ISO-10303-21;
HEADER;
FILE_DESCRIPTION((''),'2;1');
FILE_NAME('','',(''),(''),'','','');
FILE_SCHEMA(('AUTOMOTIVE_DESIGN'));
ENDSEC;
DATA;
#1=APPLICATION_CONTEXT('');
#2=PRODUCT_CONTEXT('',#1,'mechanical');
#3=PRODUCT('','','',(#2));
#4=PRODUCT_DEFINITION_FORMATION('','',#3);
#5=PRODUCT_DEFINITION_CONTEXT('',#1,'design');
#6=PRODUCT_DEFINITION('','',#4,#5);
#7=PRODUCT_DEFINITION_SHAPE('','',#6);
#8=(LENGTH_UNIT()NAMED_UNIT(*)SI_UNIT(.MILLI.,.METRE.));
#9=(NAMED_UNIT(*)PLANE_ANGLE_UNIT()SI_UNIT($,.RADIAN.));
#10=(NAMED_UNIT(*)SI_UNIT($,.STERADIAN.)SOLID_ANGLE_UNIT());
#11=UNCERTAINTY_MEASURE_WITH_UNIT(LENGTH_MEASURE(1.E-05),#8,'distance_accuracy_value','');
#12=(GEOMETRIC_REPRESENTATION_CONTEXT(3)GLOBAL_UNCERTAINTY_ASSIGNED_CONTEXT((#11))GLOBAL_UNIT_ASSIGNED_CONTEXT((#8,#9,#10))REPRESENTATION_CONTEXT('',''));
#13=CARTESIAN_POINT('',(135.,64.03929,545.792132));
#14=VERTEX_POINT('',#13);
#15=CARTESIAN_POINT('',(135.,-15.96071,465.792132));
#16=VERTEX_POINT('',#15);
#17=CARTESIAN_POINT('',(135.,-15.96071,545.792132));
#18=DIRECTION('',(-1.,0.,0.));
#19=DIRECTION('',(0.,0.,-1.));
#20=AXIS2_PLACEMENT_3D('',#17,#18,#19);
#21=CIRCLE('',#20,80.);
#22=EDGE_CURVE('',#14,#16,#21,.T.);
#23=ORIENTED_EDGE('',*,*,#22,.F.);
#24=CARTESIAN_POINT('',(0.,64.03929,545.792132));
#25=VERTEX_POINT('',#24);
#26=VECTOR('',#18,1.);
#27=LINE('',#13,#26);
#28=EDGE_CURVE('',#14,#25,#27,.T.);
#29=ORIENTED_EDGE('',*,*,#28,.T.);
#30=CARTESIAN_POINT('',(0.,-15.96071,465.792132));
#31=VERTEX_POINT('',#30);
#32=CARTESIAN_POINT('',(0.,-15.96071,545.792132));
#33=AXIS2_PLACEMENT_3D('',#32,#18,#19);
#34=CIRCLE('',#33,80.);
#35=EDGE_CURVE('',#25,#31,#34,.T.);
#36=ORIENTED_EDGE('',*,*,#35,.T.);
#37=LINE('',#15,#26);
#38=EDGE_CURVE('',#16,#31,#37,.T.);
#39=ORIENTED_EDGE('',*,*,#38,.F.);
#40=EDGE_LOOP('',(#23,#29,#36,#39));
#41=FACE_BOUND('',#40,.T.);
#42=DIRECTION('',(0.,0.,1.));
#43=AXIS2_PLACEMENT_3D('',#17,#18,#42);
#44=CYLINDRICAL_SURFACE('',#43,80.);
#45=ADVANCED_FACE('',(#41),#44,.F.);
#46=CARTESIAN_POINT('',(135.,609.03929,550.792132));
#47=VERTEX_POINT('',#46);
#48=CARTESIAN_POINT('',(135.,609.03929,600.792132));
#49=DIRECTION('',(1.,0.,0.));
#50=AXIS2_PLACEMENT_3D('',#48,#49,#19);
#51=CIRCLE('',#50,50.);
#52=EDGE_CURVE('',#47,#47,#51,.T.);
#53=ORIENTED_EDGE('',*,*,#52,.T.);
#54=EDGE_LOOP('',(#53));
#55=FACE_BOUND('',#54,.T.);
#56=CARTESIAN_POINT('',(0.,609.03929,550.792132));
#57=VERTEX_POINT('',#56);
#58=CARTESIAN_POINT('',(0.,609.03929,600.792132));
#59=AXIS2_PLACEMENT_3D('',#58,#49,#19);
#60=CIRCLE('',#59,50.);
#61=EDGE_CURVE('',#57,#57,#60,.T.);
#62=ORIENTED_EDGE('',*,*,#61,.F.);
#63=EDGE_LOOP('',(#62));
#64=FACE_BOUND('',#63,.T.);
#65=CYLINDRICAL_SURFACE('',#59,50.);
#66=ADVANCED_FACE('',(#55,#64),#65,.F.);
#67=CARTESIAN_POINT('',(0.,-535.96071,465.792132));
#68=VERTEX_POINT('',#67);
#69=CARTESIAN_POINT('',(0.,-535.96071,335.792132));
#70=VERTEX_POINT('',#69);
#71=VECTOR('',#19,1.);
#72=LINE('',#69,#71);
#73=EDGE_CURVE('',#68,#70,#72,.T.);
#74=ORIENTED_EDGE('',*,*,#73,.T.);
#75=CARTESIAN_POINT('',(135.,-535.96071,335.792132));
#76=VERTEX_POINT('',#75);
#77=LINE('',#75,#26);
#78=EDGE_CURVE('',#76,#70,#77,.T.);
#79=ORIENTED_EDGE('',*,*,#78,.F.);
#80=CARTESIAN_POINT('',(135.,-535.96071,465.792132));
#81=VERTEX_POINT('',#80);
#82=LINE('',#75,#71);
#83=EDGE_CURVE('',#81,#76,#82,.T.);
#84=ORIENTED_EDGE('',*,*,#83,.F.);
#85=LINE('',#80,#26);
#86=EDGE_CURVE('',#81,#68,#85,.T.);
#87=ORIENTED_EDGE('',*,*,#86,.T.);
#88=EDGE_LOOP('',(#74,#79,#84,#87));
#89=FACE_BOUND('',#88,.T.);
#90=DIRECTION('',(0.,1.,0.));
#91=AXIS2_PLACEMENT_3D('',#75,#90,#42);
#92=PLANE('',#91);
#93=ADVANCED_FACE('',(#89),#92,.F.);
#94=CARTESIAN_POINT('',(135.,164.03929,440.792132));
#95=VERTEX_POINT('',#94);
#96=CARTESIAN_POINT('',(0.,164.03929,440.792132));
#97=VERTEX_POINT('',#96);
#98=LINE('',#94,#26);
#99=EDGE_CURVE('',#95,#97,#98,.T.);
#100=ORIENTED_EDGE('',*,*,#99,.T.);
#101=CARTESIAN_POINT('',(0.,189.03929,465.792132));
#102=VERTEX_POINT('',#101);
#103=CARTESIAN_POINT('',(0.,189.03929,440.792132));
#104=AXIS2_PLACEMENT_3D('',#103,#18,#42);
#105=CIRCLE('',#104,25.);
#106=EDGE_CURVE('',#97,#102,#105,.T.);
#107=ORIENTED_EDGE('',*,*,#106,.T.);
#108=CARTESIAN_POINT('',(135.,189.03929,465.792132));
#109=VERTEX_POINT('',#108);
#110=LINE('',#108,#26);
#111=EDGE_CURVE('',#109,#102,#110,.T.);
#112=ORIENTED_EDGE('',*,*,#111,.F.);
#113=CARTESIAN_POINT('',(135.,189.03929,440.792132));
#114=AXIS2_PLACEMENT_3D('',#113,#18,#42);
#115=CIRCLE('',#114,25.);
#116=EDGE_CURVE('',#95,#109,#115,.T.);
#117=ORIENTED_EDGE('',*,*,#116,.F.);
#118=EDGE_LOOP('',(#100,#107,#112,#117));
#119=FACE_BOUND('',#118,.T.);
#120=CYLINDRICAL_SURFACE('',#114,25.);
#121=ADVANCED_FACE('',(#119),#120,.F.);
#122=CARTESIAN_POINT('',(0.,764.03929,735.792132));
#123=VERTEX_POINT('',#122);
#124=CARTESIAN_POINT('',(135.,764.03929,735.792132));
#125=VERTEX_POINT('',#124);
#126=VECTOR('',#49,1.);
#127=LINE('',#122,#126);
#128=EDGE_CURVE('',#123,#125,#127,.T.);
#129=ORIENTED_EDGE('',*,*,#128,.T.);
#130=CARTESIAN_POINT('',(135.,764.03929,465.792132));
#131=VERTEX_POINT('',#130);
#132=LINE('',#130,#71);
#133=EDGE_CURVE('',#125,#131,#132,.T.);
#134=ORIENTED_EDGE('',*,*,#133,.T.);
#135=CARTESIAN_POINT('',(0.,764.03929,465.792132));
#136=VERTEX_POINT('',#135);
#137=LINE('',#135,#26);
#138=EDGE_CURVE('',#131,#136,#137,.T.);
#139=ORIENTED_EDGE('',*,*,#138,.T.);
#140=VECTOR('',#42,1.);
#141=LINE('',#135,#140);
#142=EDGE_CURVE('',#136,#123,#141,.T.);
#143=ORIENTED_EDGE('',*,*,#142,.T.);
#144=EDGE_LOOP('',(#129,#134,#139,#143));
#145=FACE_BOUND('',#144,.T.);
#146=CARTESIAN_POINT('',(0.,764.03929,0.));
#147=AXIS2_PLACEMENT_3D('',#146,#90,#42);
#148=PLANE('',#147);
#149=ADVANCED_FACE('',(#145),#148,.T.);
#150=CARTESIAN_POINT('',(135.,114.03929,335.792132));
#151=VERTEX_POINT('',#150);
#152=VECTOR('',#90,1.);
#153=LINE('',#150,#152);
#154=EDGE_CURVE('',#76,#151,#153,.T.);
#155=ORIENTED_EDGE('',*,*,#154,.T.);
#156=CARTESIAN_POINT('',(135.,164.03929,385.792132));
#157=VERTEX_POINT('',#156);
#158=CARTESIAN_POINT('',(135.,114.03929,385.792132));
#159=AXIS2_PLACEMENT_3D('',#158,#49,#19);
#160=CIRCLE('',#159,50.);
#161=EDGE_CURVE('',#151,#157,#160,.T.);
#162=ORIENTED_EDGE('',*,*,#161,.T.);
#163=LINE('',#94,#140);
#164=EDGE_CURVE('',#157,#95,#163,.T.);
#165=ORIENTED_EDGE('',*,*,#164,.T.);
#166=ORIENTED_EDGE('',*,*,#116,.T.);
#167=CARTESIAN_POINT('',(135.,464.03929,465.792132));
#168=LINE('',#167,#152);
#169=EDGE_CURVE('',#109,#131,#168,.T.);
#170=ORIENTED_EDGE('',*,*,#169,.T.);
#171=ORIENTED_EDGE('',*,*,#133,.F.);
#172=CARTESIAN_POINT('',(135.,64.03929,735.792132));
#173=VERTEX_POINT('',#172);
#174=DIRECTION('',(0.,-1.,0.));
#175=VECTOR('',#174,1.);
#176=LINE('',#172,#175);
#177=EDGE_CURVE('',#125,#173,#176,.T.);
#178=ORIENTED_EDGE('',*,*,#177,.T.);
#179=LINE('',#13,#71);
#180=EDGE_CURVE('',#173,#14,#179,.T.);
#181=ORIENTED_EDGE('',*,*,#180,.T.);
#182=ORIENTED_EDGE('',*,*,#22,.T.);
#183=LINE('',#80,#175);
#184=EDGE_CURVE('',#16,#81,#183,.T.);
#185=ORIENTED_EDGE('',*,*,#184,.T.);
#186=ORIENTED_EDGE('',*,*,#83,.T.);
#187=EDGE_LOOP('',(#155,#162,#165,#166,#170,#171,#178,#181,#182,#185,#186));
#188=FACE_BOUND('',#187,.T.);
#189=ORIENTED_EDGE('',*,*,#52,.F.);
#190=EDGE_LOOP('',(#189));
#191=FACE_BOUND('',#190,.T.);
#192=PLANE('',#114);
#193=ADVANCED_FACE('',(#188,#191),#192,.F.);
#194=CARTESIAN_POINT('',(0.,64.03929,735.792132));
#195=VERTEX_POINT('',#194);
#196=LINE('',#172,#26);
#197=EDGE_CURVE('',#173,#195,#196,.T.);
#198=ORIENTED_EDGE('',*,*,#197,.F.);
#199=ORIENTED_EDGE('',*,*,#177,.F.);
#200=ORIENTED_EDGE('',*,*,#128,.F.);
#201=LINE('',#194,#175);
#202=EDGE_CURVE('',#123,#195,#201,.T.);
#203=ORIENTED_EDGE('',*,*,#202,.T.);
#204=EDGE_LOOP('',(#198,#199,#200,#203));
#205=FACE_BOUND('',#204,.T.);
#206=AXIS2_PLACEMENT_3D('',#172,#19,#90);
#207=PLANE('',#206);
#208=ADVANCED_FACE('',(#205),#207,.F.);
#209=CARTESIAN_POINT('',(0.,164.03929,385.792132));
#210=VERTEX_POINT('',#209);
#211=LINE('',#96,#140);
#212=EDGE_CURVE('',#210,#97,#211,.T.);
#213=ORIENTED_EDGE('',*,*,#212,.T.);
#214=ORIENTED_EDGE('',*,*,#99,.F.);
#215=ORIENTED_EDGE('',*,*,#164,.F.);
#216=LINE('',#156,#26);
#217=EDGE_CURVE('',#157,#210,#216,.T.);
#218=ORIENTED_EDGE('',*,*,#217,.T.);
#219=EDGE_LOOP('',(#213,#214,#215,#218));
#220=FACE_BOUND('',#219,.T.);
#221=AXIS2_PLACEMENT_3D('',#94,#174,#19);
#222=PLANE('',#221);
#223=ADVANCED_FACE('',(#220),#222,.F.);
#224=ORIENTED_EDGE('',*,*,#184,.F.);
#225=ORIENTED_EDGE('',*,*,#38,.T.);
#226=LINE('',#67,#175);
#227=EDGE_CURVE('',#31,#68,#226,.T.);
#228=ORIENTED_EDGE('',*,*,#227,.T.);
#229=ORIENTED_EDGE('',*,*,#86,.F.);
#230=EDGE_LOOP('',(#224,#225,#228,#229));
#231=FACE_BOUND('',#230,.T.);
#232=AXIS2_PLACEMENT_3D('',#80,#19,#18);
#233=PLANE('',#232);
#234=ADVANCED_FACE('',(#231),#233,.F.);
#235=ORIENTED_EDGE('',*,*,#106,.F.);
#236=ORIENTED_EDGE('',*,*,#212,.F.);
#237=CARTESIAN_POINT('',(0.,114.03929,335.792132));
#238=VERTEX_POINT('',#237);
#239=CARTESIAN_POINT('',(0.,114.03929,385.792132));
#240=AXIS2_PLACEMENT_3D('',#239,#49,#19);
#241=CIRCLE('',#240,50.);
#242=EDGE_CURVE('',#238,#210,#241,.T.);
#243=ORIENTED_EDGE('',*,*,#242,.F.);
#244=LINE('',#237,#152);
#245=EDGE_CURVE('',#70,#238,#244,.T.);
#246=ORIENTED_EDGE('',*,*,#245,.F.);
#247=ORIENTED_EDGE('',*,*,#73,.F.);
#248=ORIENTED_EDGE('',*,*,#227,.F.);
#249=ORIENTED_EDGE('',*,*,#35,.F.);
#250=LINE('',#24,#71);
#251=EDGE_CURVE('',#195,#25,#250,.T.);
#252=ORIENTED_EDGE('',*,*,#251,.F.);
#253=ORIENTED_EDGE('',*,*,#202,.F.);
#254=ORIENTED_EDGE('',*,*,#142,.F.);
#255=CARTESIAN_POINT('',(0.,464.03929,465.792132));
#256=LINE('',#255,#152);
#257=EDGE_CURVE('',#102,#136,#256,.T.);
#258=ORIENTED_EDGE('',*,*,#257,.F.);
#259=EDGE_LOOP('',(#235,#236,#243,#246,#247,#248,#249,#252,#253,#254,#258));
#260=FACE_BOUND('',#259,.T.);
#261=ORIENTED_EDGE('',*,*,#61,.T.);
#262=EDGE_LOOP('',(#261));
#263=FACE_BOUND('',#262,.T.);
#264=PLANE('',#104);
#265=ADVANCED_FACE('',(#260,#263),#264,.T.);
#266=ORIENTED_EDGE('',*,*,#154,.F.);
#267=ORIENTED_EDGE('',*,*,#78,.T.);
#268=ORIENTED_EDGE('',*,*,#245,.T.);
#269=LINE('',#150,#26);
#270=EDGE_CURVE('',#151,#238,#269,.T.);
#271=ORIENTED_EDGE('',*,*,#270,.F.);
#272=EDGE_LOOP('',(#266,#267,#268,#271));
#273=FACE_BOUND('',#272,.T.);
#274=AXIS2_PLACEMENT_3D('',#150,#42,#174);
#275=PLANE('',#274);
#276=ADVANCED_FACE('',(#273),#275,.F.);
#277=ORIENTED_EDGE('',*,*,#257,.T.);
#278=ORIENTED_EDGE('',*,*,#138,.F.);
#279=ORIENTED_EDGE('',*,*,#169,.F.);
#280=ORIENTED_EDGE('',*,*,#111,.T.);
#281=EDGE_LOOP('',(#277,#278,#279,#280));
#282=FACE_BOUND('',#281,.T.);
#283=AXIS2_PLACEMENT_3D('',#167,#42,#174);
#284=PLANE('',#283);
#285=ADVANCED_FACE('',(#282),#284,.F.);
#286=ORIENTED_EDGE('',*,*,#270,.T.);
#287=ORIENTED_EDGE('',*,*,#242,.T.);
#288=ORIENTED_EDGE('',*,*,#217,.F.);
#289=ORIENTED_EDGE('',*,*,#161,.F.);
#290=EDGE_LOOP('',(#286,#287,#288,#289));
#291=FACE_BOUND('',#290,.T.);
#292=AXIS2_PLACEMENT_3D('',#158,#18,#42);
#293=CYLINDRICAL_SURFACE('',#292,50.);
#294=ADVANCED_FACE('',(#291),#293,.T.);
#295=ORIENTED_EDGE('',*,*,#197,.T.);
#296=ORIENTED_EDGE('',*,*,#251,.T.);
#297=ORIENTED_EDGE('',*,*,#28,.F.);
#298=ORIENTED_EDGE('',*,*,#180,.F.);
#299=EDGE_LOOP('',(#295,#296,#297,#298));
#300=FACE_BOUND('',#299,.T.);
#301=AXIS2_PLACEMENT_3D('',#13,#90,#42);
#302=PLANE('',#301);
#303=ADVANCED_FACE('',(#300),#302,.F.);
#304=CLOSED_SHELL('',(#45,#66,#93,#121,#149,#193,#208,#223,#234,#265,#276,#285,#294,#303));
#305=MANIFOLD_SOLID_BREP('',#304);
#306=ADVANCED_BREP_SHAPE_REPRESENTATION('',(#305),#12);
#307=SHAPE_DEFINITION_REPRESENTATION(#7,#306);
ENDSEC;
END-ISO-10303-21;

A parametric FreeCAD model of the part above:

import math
import FreeCAD as App
import Part
import Sketcher

V = App.Vector


def add_polygon(sketch, points):
    """Adds a closed chain of lines whose ends are joined by coincident constraints."""
    first, n = sketch.GeometryCount, len(points)
    for a, b in zip(points, points[1:] + points[:1]):
        sketch.addGeometry(Part.LineSegment(App.Vector(*a, 0), App.Vector(*b, 0)), False)
    for i in range(n):
        sketch.addConstraint(Sketcher.Constraint("Coincident", first + i, 2, first + (i + 1) % n, 1))

doc = App.newDocument("Part")
params = doc.addObject("Spreadsheet::Sheet", "Params")
for row, (alias, value) in enumerate([
    ("sketch1_radius", "80 mm"),
    ("sketch1_radius2", "50 mm"),
    ("sketch1_radius3", "25 mm"),
    ("sketch1_width", "275 mm"),
    ("sketch1_width2", "400 mm"),
    ("pad1_length", "135 mm"),
    ("sketch2_width", "135 mm"),
    ("sketch2_height", "270 mm"),
    ("pad2_length", "300 mm"),
    ("sketch3_diameter", "100 mm"),
], start=1):
    params.set(f"A{row}", alias)
    params.set(f"B{row}", "=" + value)
    params.setAlias(f"B{row}", alias)

body = doc.addObject("PartDesign::Body", "Body")

# Sketch on YZ plane
sketch1 = doc.addObject("Sketcher::SketchObject", "Sketch")
body.addObject(sketch1)
sketch1.AttachmentSupport = (doc.YZ_Plane, [""])
sketch1.MapMode = "FlatFace"
sketch1.addGeometry([
    Part.LineSegment(V(189, 466, 0), V(464, 466, 0)),  # 0
    Part.LineSegment(V(464, 466, 0), V(464, 736, 0)),  # 1
    Part.LineSegment(V(464, 736, 0), V(64, 736, 0)),  # 2
    Part.LineSegment(V(64, 736, 0), V(64, 546, 0)),  # 3
    Part.ArcOfCircle(Part.Circle(V(-16, 546, 0), V(0, 0, 1), 80), math.radians(-90), math.radians(0)),  # 4
    Part.LineSegment(V(-16, 466, 0), V(-536, 466, 0)),  # 5
    Part.LineSegment(V(-536, 466, 0), V(-536, 336, 0)),  # 6
    Part.LineSegment(V(-536, 336, 0), V(114, 336, 0)),  # 7
    Part.ArcOfCircle(Part.Circle(V(114, 386, 0), V(0, 0, 1), 50), math.radians(-90), math.radians(0)),  # 8
    Part.LineSegment(V(164, 386, 0), V(164, 441, 0)),  # 9
    Part.ArcOfCircle(Part.Circle(V(189, 441, 0), V(0, 0, 1), 25), math.radians(90), math.radians(180)),  # 10
], False)
sketch1.addConstraint([
    Sketcher.Constraint("Coincident", 0, 2, 1, 1),
    Sketcher.Constraint("Coincident", 1, 2, 2, 1),
    Sketcher.Constraint("Coincident", 2, 2, 3, 1),
    Sketcher.Constraint("Tangent", 3, 2, 4, 2),
    Sketcher.Constraint("Tangent", 4, 1, 5, 1),
    Sketcher.Constraint("Coincident", 5, 2, 6, 1),
    Sketcher.Constraint("Coincident", 6, 2, 7, 1),
    Sketcher.Constraint("Tangent", 7, 2, 8, 1),
    Sketcher.Constraint("Tangent", 8, 2, 9, 1),
    Sketcher.Constraint("Tangent", 9, 2, 10, 2),
    Sketcher.Constraint("Tangent", 10, 1, 0, 1),
    Sketcher.Constraint("Horizontal", 0),
    Sketcher.Constraint("Vertical", 1),
    Sketcher.Constraint("Horizontal", 2),
    Sketcher.Constraint("Vertical", 3),
    Sketcher.Constraint("Horizontal", 5),
    Sketcher.Constraint("Vertical", 6),
    Sketcher.Constraint("Horizontal", 7),
    Sketcher.Constraint("Vertical", 9),
    Sketcher.Constraint("Horizontal", 0, 2, 4, 1),
    Sketcher.Constraint("Radius", 4, 80.0),
    Sketcher.Constraint("Radius", 8, 50.0),
    Sketcher.Constraint("Radius", 10, 25.0),
    Sketcher.Constraint("DistanceX", 0, 1, 0, 2, 275.0),
    Sketcher.Constraint("DistanceX", 2, 2, 2, 1, 400.0),
    Sketcher.Constraint("DistanceX", 5, 2, 5, 1, 520.0),
    Sketcher.Constraint("DistanceY", 1, 1, 1, 2, 270.0),
    Sketcher.Constraint("DistanceY", 6, 2, 6, 1, 130.0),
    Sketcher.Constraint("DistanceX", 4, 3, -1, 1, 15.96071),
    Sketcher.Constraint("DistanceY", -1, 1, 4, 3, 545.792132),
])
sketch1.setExpression("Constraints[20]", "Params.sketch1_radius")
sketch1.setExpression("Constraints[21]", "Params.sketch1_radius2")
sketch1.setExpression("Constraints[22]", "Params.sketch1_radius3")
sketch1.setExpression("Constraints[23]", "Params.sketch1_width")
sketch1.setExpression("Constraints[24]", "Params.sketch1_width2")
pad1 = doc.addObject("PartDesign::Pad", "Pad")
body.addObject(pad1)
pad1.Profile = sketch1
pad1.setExpression("Length", "Params.pad1_length")

# Sketch on XZ plane
sketch2 = doc.addObject("Sketcher::SketchObject", "Sketch001")
body.addObject(sketch2)
sketch2.AttachmentSupport = (doc.XZ_Plane, [""])
sketch2.MapMode = "FlatFace"
sketch2.AttachmentOffset = App.Placement(V(0, 0, -464.03929), App.Rotation())
add_polygon(sketch2, [(0, 466), (0, 736), (135, 736), (135, 466)])  # lines 0-3
sketch2.addConstraint([
    Sketcher.Constraint("Vertical", 0),
    Sketcher.Constraint("Horizontal", 1),
    Sketcher.Constraint("Vertical", 2),
    Sketcher.Constraint("Horizontal", 3),
    Sketcher.Constraint("PointOnObject", 0, 2, -2),
    Sketcher.Constraint("DistanceX", 1, 1, 1, 2, 135.0),
    Sketcher.Constraint("DistanceY", 0, 1, 0, 2, 270.0),
    Sketcher.Constraint("DistanceY", -1, 1, 0, 2, 735.792132),
])
sketch2.setExpression("Constraints[9]", "Params.sketch2_width")
sketch2.setExpression("Constraints[10]", "Params.sketch2_height")
pad2 = doc.addObject("PartDesign::Pad", "Pad001")
body.addObject(pad2)
pad2.Profile = sketch2
pad2.setExpression("Length", "Params.pad2_length")
pad2.Reversed = True

# Sketch on YZ plane
sketch3 = doc.addObject("Sketcher::SketchObject", "Sketch002")
body.addObject(sketch3)
sketch3.AttachmentSupport = (doc.YZ_Plane, [""])
sketch3.MapMode = "FlatFace"
sketch3.AttachmentOffset = App.Placement(V(0, 0, 135), App.Rotation())
sketch3.addGeometry(Part.Circle(V(609, 601, 0), V(0, 0, 1), 50), False)
sketch3.addConstraint([
    Sketcher.Constraint("Diameter", 0, 100.0),
    Sketcher.Constraint("DistanceX", -1, 1, 0, 3, 609.03929),
    Sketcher.Constraint("DistanceY", -1, 1, 0, 3, 600.792132),
])
sketch3.setExpression("Constraints[0]", "Params.sketch3_diameter")
pocket1 = doc.addObject("PartDesign::Pocket", "Pocket")
body.addObject(pocket1)
pocket1.Profile = sketch3
pocket1.Type = "ThroughAll"

doc.recompute()
